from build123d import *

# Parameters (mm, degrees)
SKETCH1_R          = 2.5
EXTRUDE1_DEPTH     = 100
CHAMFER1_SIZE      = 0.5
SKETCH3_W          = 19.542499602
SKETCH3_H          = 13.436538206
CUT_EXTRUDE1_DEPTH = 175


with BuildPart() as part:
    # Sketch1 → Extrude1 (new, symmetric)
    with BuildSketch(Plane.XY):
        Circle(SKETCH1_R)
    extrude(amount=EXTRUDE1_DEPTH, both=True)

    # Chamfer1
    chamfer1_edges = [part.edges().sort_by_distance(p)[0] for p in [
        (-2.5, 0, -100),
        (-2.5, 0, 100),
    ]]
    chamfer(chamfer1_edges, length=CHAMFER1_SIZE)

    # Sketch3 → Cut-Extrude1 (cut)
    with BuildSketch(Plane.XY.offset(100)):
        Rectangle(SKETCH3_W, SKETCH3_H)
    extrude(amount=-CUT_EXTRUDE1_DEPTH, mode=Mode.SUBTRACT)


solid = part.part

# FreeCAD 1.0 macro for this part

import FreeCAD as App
import Part
import Sketcher

V = App.Vector


def edges_at(feature, points):
    """Names of the edges that pass closest to the given points."""
    edges = feature.Shape.Edges
    near = lambda p: min(range(len(edges)), key=lambda i: edges[i].distToShape(Part.Vertex(*p))[0])
    return sorted({f"Edge{near(p) + 1}" for p in points})

doc = App.newDocument("Part")
params = doc.addObject("Spreadsheet::Sheet", "Params")
for row, (alias, value) in enumerate([
    ("sketch1_diameter", "5 mm"),
    ("pad1_length", "200 mm"),
    ("chamfer_size", "0.5 mm"),
    ("pocket1_length", "175 mm"),
], start=1):
    params.set(f"A{row}", alias)
    params.set(f"B{row}", "=" + value)
    params.setAlias(f"B{row}", alias)

body = doc.addObject("PartDesign::Body", "Body")

# Sketch on XY plane
sketch1 = body.newObject("Sketcher::SketchObject", "Sketch")
sketch1.AttachmentSupport = (doc.getObject("XY_Plane"), [""])
sketch1.MapMode = "FlatFace"
sketch1.addGeometry(Part.Circle(V(0, 0, 0), V(0, 0, 1), 2.5), False)
sketch1.addConstraint(Sketcher.Constraint("Coincident", 0, 3, -1, 1))
sketch1.addConstraint(Sketcher.Constraint("Diameter", 0, 5.0))
sketch1.setExpression("Constraints[1]", "Params.sketch1_diameter")
pad1 = body.newObject("PartDesign::Pad", "Pad")
pad1.Profile = sketch1
pad1.setExpression("Length", "Params.pad1_length")
pad1.Midplane = True
doc.recompute()

chamfer = body.newObject("PartDesign::Chamfer", "Chamfer")
chamfer.Base = (pad1, edges_at(pad1, [(-2.5, 0, -100), (-2.5, 0, 100)]))
chamfer.setExpression("Size", "Params.chamfer_size")

# Sketch on XY plane
sketch2 = body.newObject("Sketcher::SketchObject", "Sketch001")
sketch2.AttachmentSupport = (doc.getObject("XY_Plane"), [""])
sketch2.MapMode = "FlatFace"
sketch2.AttachmentOffset = App.Placement(V(0, 0, 100), App.Rotation())
sketch2.addGeometry(Part.LineSegment(V(-9.77125, 6.718269, 0), V(-9.77125, -6.718269, 0)), False)
sketch2.addGeometry(Part.LineSegment(V(-9.77125, -6.718269, 0), V(9.77125, -6.718269, 0)), False)
sketch2.addGeometry(Part.LineSegment(V(9.77125, -6.718269, 0), V(9.77125, 6.718269, 0)), False)
sketch2.addGeometry(Part.LineSegment(V(9.77125, 6.718269, 0), V(-9.77125, 6.718269, 0)), False)
sketch2.addConstraint(Sketcher.Constraint("Coincident", 0, 2, 1, 1))
sketch2.addConstraint(Sketcher.Constraint("Coincident", 1, 2, 2, 1))
sketch2.addConstraint(Sketcher.Constraint("Coincident", 2, 2, 3, 1))
sketch2.addConstraint(Sketcher.Constraint("Coincident", 3, 2, 0, 1))
sketch2.addConstraint(Sketcher.Constraint("Vertical", 0))
sketch2.addConstraint(Sketcher.Constraint("Horizontal", 1))
sketch2.addConstraint(Sketcher.Constraint("Vertical", 2))
sketch2.addConstraint(Sketcher.Constraint("Horizontal", 3))
sketch2.addConstraint(Sketcher.Constraint("Symmetric", 0, 2, 2, 2, -1, 1))
sketch2.addConstraint(Sketcher.Constraint("DistanceX", 1, 1, 1, 2, 19.5425))
sketch2.addConstraint(Sketcher.Constraint("DistanceY", 0, 2, 0, 1, 13.436538))
pocket1 = body.newObject("PartDesign::Pocket", "Pocket")
pocket1.Profile = sketch2
pocket1.setExpression("Length", "Params.pocket1_length")

doc.recompute()
